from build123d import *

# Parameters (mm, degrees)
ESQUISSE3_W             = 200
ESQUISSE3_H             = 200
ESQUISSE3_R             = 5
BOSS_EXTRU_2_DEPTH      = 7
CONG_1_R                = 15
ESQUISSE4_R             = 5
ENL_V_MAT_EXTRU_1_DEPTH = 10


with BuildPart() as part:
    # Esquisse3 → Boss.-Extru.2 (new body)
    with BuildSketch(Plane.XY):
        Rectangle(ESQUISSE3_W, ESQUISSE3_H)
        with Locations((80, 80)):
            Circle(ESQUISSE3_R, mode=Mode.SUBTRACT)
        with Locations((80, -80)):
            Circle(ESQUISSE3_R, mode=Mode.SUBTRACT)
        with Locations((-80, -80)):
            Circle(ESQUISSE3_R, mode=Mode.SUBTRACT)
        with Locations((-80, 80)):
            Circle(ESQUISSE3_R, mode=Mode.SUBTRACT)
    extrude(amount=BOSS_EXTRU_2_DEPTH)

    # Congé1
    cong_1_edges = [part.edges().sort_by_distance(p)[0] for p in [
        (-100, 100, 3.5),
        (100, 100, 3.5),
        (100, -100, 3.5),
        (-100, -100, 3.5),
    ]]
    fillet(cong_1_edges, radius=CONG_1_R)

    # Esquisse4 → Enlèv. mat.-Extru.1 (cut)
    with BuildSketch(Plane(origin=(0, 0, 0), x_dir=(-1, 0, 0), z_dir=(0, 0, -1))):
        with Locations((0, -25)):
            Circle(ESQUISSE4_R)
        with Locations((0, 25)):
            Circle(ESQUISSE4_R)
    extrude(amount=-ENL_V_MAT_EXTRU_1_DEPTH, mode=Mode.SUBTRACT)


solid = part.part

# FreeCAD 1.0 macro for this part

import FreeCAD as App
import Part
import Sketcher


def edges_at(feature, points):
    """Names of the edges that pass closest to the given points."""
    edges = feature.Shape.Edges
    near = lambda p: min(range(len(edges)), key=lambda i: edges[i].distToShape(Part.Vertex(*p))[0])
    return sorted({f"Edge{near(p) + 1}" for p in points})

doc = App.newDocument("Part")
body = doc.addObject("PartDesign::Body", "Body")

# Sketch on XY plane
sketch1 = doc.addObject("Sketcher::SketchObject", "Sketch")
body.addObject(sketch1)
sketch1.AttachmentSupport = (doc.XY_Plane, [""])
sketch1.MapMode = "FlatFace"
sketch1.addGeometry(Part.LineSegment(App.Vector(-100, 100, 0), App.Vector(-100, -100, 0)), False)
sketch1.addGeometry(Part.LineSegment(App.Vector(-100, -100, 0), App.Vector(100, -100, 0)), False)
sketch1.addGeometry(Part.LineSegment(App.Vector(100, -100, 0), App.Vector(100, 100, 0)), False)
sketch1.addGeometry(Part.LineSegment(App.Vector(100, 100, 0), App.Vector(-100, 100, 0)), False)
sketch1.addGeometry(Part.Circle(App.Vector(-80, -80, 0), App.Vector(0, 0, 1), 5), False)
sketch1.addGeometry(Part.Circle(App.Vector(80, -80, 0), App.Vector(0, 0, 1), 5), False)
sketch1.addGeometry(Part.Circle(App.Vector(-80, 80, 0), App.Vector(0, 0, 1), 5), False)
sketch1.addGeometry(Part.Circle(App.Vector(80, 80, 0), App.Vector(0, 0, 1), 5), False)
sketch1.addConstraint(Sketcher.Constraint("Coincident", 0, 2, 1, 1))
sketch1.addConstraint(Sketcher.Constraint("Coincident", 1, 2, 2, 1))
sketch1.addConstraint(Sketcher.Constraint("Coincident", 2, 2, 3, 1))
sketch1.addConstraint(Sketcher.Constraint("Coincident", 3, 2, 0, 1))
sketch1.addConstraint(Sketcher.Constraint("Vertical", 0))
sketch1.addConstraint(Sketcher.Constraint("Horizontal", 1))
sketch1.addConstraint(Sketcher.Constraint("Vertical", 2))
sketch1.addConstraint(Sketcher.Constraint("Horizontal", 3))
sketch1.addConstraint(Sketcher.Constraint("Equal", 4, 5))
sketch1.addConstraint(Sketcher.Constraint("Equal", 5, 6))
sketch1.addConstraint(Sketcher.Constraint("Equal", 6, 7))
sketch1.addConstraint(Sketcher.Constraint("Symmetric", 5, 3, 6, 3, -1, 1))
sketch1.addConstraint(Sketcher.Constraint("Symmetric", 4, 3, 7, 3, -1, 1))
sketch1.addConstraint(Sketcher.Constraint("Symmetric", 0, 2, 2, 2, -1, 1))
sketch1.addConstraint(Sketcher.Constraint("Symmetric", 4, 3, 5, 3, -2))
sketch1.addConstraint(Sketcher.Constraint("Equal", 3, 0))
sketch1.addConstraint(Sketcher.Constraint("Diameter", 4, 10.0))
sketch1.addConstraint(Sketcher.Constraint("DistanceX", 1, 1, 1, 2, 200.0))
sketch1.addConstraint(Sketcher.Constraint("DistanceX", 4, 3, -1, 1, 80.0))
sketch1.addConstraint(Sketcher.Constraint("DistanceY", 4, 3, -1, 1, 80.0))
pad1 = doc.addObject("PartDesign::Pad", "Pad")
body.addObject(pad1)
pad1.Profile = sketch1
pad1.Length = 7
doc.recompute()

fillet = doc.addObject("PartDesign::Fillet", "Fillet")
body.addObject(fillet)
fillet.Base = (pad1, edges_at(pad1, [
    (-100, 100, 3.5),
    (100, 100, 3.5),
    (100, -100, 3.5),
    (-100, -100, 3.5),
]))
fillet.Radius = 15

# Sketch on XY plane
sketch2 = doc.addObject("Sketcher::SketchObject", "Sketch001")
body.addObject(sketch2)
sketch2.AttachmentSupport = (doc.XY_Plane, [""])
sketch2.MapMode = "FlatFace"
sketch2.addGeometry(Part.Circle(App.Vector(0, -25, 0), App.Vector(0, 0, 1), 5), False)
sketch2.addGeometry(Part.Circle(App.Vector(0, 25, 0), App.Vector(0, 0, 1), 5), False)
sketch2.addConstraint(Sketcher.Constraint("Equal", 0, 1))
sketch2.addConstraint(Sketcher.Constraint("Symmetric", 0, 3, 1, 3, -1, 1))
sketch2.addConstraint(Sketcher.Constraint("PointOnObject", 0, 3, -2))
sketch2.addConstraint(Sketcher.Constraint("Diameter", 0, 10.0))
sketch2.addConstraint(Sketcher.Constraint("DistanceY", 0, 3, -1, 1, 25.0))
pocket1 = doc.addObject("PartDesign::Pocket", "Pocket")
body.addObject(pocket1)
pocket1.Profile = sketch2
pocket1.Length = 10
pocket1.Reversed = True

doc.recompute()
